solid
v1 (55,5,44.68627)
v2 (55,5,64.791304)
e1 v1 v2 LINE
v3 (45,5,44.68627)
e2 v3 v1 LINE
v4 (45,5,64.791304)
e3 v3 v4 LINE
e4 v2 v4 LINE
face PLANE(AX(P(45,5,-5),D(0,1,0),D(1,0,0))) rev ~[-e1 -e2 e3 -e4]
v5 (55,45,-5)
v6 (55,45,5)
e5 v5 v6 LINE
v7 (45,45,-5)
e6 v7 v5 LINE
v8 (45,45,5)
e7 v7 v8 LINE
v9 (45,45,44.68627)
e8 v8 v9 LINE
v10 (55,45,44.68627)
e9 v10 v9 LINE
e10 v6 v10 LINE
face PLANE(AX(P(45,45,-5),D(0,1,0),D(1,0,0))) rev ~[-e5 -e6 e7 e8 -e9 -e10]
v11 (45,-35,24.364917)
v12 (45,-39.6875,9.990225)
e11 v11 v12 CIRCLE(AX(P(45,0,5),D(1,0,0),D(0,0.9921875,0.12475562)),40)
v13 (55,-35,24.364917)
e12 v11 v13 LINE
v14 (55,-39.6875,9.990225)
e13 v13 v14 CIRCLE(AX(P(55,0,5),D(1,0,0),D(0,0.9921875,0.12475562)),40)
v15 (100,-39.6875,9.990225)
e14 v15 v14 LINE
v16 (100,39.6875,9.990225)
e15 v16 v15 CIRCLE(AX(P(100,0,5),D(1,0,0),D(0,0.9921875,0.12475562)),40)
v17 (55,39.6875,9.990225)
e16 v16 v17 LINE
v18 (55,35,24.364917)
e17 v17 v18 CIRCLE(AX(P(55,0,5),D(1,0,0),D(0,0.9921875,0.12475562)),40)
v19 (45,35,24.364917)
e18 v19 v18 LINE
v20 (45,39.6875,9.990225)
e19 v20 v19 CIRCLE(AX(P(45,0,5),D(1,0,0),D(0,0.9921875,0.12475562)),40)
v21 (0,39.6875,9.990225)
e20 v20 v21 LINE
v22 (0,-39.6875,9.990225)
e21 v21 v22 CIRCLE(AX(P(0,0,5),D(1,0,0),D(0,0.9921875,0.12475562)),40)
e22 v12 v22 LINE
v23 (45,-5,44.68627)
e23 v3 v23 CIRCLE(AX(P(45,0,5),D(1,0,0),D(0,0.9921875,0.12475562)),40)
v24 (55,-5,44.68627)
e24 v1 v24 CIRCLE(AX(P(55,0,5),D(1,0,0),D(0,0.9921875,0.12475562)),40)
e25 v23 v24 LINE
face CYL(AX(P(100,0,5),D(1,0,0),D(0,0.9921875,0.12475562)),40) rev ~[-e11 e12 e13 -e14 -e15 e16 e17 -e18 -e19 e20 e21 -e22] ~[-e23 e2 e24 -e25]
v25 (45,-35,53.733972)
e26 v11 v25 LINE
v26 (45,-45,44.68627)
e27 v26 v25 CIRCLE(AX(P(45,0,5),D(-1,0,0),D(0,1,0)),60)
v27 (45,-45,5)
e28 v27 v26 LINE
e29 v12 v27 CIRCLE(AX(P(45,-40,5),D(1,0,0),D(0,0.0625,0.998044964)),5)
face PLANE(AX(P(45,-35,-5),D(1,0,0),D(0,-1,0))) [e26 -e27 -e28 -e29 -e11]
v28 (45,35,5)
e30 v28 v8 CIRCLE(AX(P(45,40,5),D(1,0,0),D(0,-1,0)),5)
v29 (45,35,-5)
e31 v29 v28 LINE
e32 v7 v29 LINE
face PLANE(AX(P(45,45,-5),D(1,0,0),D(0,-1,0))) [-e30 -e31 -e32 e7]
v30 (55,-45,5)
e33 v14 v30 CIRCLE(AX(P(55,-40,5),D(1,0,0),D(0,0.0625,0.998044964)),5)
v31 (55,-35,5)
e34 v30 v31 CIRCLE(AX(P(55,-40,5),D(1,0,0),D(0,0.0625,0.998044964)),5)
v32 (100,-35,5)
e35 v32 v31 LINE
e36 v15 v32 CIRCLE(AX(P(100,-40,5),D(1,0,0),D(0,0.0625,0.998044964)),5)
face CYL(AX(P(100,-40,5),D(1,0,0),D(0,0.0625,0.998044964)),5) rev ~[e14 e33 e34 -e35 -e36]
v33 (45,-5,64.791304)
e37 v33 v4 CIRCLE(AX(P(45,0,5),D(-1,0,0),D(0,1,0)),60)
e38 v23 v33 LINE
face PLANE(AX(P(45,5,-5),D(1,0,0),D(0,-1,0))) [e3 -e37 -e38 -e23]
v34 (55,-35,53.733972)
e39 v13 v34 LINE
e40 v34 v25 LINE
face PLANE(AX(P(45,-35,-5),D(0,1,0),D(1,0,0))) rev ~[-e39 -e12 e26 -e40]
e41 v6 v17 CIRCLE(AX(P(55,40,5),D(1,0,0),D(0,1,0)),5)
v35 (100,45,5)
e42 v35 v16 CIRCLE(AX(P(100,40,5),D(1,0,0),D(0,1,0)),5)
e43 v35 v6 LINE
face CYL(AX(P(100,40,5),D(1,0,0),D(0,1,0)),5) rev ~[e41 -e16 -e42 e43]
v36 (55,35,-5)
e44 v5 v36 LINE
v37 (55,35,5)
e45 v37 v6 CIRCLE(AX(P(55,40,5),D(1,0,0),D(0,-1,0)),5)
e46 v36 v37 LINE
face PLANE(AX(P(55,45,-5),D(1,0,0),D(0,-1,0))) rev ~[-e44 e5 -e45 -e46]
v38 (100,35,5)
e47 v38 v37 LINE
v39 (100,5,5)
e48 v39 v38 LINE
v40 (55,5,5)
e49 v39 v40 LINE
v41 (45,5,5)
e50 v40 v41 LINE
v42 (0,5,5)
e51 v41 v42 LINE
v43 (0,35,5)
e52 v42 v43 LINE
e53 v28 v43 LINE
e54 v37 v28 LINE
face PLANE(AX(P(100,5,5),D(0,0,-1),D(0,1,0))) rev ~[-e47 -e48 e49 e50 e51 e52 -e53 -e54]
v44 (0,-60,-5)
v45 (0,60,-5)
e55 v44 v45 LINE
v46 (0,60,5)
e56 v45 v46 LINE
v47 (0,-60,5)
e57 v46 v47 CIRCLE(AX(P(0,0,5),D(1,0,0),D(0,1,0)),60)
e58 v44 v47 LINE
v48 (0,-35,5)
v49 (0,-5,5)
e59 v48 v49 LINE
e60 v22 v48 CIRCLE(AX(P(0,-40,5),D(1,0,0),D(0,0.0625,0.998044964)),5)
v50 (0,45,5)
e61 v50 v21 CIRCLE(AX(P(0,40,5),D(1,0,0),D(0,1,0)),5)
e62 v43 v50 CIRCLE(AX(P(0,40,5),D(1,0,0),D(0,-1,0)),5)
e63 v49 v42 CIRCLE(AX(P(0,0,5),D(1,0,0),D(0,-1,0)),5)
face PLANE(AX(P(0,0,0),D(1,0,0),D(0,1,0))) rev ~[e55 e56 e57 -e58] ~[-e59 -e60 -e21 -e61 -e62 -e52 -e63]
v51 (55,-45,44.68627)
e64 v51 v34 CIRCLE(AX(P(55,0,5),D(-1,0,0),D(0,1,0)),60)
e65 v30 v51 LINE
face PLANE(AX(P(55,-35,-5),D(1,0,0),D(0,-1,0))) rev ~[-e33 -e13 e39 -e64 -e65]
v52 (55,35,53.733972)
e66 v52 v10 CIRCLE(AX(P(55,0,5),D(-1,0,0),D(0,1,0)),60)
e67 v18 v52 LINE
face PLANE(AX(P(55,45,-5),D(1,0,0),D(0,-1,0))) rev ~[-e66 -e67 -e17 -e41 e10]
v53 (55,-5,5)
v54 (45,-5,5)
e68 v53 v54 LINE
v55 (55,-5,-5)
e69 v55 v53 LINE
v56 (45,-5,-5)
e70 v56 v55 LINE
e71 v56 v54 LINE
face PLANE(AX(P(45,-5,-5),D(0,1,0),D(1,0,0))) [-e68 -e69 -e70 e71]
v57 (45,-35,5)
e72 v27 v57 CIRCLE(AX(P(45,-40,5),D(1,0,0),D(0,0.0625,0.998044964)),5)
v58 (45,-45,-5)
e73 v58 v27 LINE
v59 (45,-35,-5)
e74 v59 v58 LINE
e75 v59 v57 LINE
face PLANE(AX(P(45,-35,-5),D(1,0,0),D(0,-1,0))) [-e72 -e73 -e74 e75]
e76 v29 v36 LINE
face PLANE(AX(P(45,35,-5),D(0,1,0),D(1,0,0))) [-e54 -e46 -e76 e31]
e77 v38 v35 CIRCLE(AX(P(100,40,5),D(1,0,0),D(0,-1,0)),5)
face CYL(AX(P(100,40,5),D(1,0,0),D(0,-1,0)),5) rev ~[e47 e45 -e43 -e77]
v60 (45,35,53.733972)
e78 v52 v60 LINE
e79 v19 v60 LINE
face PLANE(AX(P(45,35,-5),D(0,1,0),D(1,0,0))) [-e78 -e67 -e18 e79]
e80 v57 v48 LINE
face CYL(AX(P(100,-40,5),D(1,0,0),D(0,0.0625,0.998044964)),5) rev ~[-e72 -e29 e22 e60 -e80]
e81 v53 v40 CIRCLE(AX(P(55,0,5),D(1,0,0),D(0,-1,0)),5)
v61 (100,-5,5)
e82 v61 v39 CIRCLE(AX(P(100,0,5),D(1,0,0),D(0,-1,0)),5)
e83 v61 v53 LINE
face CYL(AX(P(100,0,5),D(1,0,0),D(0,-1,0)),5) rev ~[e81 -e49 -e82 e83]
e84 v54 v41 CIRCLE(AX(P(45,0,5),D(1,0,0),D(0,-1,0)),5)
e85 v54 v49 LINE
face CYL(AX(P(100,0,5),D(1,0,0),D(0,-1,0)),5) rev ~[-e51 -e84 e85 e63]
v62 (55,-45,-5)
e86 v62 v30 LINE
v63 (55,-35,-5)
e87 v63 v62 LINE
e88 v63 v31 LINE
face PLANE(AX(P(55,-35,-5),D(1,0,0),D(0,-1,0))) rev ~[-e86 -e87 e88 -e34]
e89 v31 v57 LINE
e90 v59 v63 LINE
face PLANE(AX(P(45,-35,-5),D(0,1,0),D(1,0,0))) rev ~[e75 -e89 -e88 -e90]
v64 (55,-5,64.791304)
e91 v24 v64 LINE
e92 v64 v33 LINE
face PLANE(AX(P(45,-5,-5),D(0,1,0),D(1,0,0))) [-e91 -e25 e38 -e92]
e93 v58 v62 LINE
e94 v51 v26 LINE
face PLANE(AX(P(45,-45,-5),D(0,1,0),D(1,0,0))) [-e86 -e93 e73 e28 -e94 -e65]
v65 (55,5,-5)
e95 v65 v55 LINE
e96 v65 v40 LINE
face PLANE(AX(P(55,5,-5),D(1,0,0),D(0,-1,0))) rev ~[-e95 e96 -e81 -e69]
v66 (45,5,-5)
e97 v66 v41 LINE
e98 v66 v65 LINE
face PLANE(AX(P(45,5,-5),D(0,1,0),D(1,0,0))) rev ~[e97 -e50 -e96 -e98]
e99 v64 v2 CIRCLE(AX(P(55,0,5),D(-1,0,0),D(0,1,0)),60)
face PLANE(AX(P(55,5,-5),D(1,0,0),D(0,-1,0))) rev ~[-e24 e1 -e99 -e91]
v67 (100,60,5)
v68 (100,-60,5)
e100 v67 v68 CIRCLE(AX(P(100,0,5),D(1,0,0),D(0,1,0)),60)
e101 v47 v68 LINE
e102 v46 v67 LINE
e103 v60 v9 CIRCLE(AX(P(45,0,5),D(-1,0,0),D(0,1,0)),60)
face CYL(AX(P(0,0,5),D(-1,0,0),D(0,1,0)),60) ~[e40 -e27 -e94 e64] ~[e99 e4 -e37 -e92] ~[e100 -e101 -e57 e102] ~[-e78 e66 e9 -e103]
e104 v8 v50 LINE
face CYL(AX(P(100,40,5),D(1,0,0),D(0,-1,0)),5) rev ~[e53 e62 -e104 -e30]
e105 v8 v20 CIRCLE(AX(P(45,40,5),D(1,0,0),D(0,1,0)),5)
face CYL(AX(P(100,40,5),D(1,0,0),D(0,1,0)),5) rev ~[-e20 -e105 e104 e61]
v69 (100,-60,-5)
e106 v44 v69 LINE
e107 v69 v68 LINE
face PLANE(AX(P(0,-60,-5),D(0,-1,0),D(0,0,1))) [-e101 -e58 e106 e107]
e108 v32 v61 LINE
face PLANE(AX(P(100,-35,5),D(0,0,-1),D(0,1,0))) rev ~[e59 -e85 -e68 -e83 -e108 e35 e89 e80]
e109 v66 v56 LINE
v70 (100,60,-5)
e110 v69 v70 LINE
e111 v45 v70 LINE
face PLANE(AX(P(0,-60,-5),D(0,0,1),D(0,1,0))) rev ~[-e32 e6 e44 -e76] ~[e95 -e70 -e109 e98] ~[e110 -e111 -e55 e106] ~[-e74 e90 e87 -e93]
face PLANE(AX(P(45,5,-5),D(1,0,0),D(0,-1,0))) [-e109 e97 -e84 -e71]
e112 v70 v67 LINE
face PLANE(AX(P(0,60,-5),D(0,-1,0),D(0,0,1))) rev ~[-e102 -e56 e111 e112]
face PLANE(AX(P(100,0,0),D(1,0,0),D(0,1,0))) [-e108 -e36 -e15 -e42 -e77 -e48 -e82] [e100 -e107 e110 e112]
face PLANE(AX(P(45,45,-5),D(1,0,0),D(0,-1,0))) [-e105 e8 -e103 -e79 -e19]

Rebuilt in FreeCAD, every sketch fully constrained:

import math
import FreeCAD as App
import Part
import Sketcher

V = App.Vector
Q = App.Units.Quantity


def add_polygon(sketch, points):
    """Adds a closed chain of lines whose ends are joined by coincident constraints."""
    first, n = sketch.GeometryCount, len(points)
    for a, b in zip(points, points[1:] + points[:1]):
        sketch.addGeometry(Part.LineSegment(App.Vector(*a, 0), App.Vector(*b, 0)), False)
    for i in range(n):
        sketch.addConstraint(Sketcher.Constraint("Coincident", first + i, 2, first + (i + 1) % n, 1))

doc = App.newDocument("Part")
body = doc.addObject("PartDesign::Body", "Body")

sketch1 = doc.addObject("Sketcher::SketchObject", "Sketch")
body.addObject(sketch1)
sketch1.AttachmentSupport = (doc.YZ_Plane, [""])
sketch1.MapMode = "FlatFace"
sketch1.addGeometry([
    Part.LineSegment(V(-60, 5, 0), V(-60, -5, 0)),
    Part.LineSegment(V(-60, -5, 0), V(60, -5, 0)),
    Part.LineSegment(V(60, -5, 0), V(60, 5, 0)),
    Part.ArcOfCircle(Part.Circle(V(0, 5, 0), V(0, 0, 1), 60), math.radians(0), math.radians(180)),
], False)
sketch1.addConstraint([
    Sketcher.Constraint("Coincident", 0, 2, 1, 1),
    Sketcher.Constraint("Coincident", 1, 2, 2, 1),
    Sketcher.Constraint("Tangent", 2, 2, 3, 1),
    Sketcher.Constraint("Tangent", 3, 2, 0, 1),
    Sketcher.Constraint("Vertical", 0),
    Sketcher.Constraint("Horizontal", 1),
    Sketcher.Constraint("Vertical", 2),
    Sketcher.Constraint("Symmetric", 0, 2, 2, 2, -1, 1),
    Sketcher.Constraint("Radius", 3, Q("60 mm")),
    Sketcher.Constraint("DistanceY", 0, 2, 0, 1, Q("10 mm")),
])
pad1 = doc.addObject("PartDesign::Pad", "Pad")
body.addObject(pad1)
pad1.Profile = sketch1
pad1.Length = 100

sketch2 = doc.addObject("Sketcher::SketchObject", "Sketch001")
body.addObject(sketch2)
sketch2.AttachmentSupport = (doc.YZ_Plane, [""])
sketch2.MapMode = "FlatFace"
sketch2.AttachmentOffset = App.Placement(V(0, 0, 100), App.Rotation())
sketch2.addGeometry([
    Part.ArcOfCircle(Part.Circle(V(0, 5, 0), V(0, 0, 1), 5), math.radians(180), math.radians(360)),
    Part.LineSegment(V(5, 5, 0), V(35, 5, 0)),
    Part.ArcOfCircle(Part.Circle(V(40, 5, 0), V(0, 0, 1), 5), math.radians(180), math.radians(360)),
    Part.ArcOfCircle(Part.Circle(V(40, 5, 0), V(0, 0, 1), 5), math.radians(0), math.radians(94)),
    Part.ArcOfCircle(Part.Circle(V(0, 5, 0), V(0, 0, 1), 40), math.radians(7), math.radians(173)),
    Part.ArcOfCircle(Part.Circle(V(-40, 5, 0), V(0, 0, 1), 5), math.radians(86), math.radians(360)),
    Part.LineSegment(V(-35, 5, 0), V(-5, 5, 0)),
], False)
sketch2.addConstraint([
    Sketcher.Constraint("Coincident", 0, 2, 1, 1),
    Sketcher.Constraint("Coincident", 1, 2, 2, 1),
    Sketcher.Constraint("Tangent", 2, 2, 3, 1),
    Sketcher.Constraint("Coincident", 3, 2, 4, 1),
    Sketcher.Constraint("Coincident", 4, 2, 5, 1),
    Sketcher.Constraint("Coincident", 5, 2, 6, 1),
    Sketcher.Constraint("Coincident", 6, 2, 0, 1),
    Sketcher.Constraint("Horizontal", 1),
    Sketcher.Constraint("Horizontal", 6),
    Sketcher.Constraint("Coincident", 4, 3, 0, 3),
    Sketcher.Constraint("Equal", 0, 2),
    Sketcher.Constraint("Equal", 2, 3),
    Sketcher.Constraint("Equal", 3, 5),
    Sketcher.Constraint("Symmetric", 2, 3, 5, 3, -2),
    Sketcher.Constraint("Symmetric", 0, 2, 6, 2, -2),
    Sketcher.Constraint("Horizontal", 0, 3, 2, 3),
    Sketcher.Constraint("Horizontal", 5, 3, 0, 2),
    Sketcher.Constraint("Horizontal", 1, 2, 2, 2),
    Sketcher.Constraint("Radius", 0, Q("5 mm")),
    Sketcher.Constraint("Radius", 4, Q("40 mm")),
    Sketcher.Constraint("DistanceX", 1, 1, 1, 2, Q("30 mm")),
    Sketcher.Constraint("DistanceY", -1, 1, 0, 3, Q("5 mm")),
])
pocket1 = doc.addObject("PartDesign::Pocket", "Pocket")
body.addObject(pocket1)
pocket1.Profile = sketch2
pocket1.Type = "ThroughAll"

sketch3 = doc.addObject("Sketcher::SketchObject", "Sketch002")
body.addObject(sketch3)
sketch3.AttachmentSupport = (doc.XY_Plane, [""])
sketch3.MapMode = "FlatFace"
sketch3.AttachmentOffset = App.Placement(V(0, 0, -5), App.Rotation())
add_polygon(sketch3, [(45, -5), (45, 5), (55, 5), (55, -5)])
add_polygon(sketch3, [(45, 35), (45, 45), (55, 45), (55, 35)])
add_polygon(sketch3, [(45, -45), (45, -35), (55, -35), (55, -45)])
sketch3.addConstraint([
    Sketcher.Constraint("Vertical", 0),
    Sketcher.Constraint("Horizontal", 1),
    Sketcher.Constraint("Vertical", 2),
    Sketcher.Constraint("Horizontal", 3),
    Sketcher.Constraint("Vertical", 4),
    Sketcher.Constraint("Horizontal", 5),
    Sketcher.Constraint("Vertical", 6),
    Sketcher.Constraint("Horizontal", 7),
    Sketcher.Constraint("Vertical", 8),
    Sketcher.Constraint("Horizontal", 9),
    Sketcher.Constraint("Vertical", 10),
    Sketcher.Constraint("Horizontal", 11),
    Sketcher.Constraint("Symmetric", 7, 2, 8, 2, -1),
    Sketcher.Constraint("Symmetric", 5, 2, 10, 2, -1),
    Sketcher.Constraint("Vertical", 3, 2, 4, 2),
    Sketcher.Constraint("Vertical", 2, 2, 5, 2),
    Sketcher.Constraint("Equal", 11, 0),
    Sketcher.Constraint("Equal", 2, 4),
    Sketcher.Constraint("DistanceX", 1, 1, 1, 2, Q("10 mm")),
    Sketcher.Constraint("DistanceX", -1, 1, 0, 2, Q("45 mm")),
    Sketcher.Constraint("DistanceY", -1, 1, 0, 2, Q("5 mm")),
    Sketcher.Constraint("DistanceY", -1, 1, 4, 2, Q("45 mm")),
])
pocket2 = doc.addObject("PartDesign::Pocket", "Pocket001")
body.addObject(pocket2)
pocket2.Profile = sketch3
pocket2.Type = "ThroughAll"
pocket2.Reversed = True

doc.recompute()
